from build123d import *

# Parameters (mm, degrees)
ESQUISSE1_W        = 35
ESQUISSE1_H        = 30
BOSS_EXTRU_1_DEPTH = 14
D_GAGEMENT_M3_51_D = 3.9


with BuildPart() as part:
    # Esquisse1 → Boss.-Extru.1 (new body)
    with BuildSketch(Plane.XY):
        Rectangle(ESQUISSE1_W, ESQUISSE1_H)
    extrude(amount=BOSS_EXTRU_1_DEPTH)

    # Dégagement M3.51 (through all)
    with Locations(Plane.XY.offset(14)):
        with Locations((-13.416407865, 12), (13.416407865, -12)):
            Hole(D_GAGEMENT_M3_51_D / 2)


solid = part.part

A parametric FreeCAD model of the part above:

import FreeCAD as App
import Part
import Sketcher

V = App.Vector

doc = App.newDocument("Part")
body = doc.addObject("PartDesign::Body", "Body")

sketch1 = body.newObject("Sketcher::SketchObject", "Sketch")
sketch1.AttachmentSupport = (doc.getObject("XY_Plane"), [""])
sketch1.MapMode = "FlatFace"
sketch1.addGeometry([
    Part.LineSegment(V(-18, 15, 0), V(-18, -15, 0)),
    Part.LineSegment(V(-18, -15, 0), V(18, -15, 0)),
    Part.LineSegment(V(18, -15, 0), V(18, 15, 0)),
    Part.LineSegment(V(18, 15, 0), V(-18, 15, 0)),
], False)
sketch1.addConstraint([
    Sketcher.Constraint("Coincident", 0, 2, 1, 1),
    Sketcher.Constraint("Coincident", 1, 2, 2, 1),
    Sketcher.Constraint("Coincident", 2, 2, 3, 1),
    Sketcher.Constraint("Coincident", 3, 2, 0, 1),
    Sketcher.Constraint("Vertical", 0),
    Sketcher.Constraint("Horizontal", 1),
    Sketcher.Constraint("Vertical", 2),
    Sketcher.Constraint("Horizontal", 3),
    Sketcher.Constraint("Symmetric", 0, 2, 2, 2, -1, 1),
    Sketcher.Constraint("DistanceX", 1, 1, 1, 2, 35.0),
    Sketcher.Constraint("DistanceY", 0, 2, 0, 1, 30.0),
])
pad1 = body.newObject("PartDesign::Pad", "Pad")
pad1.Profile = sketch1
pad1.Length = 14

sketch2 = body.newObject("Sketcher::SketchObject", "Sketch001")
sketch2.AttachmentSupport = (doc.getObject("XY_Plane"), [""])
sketch2.MapMode = "FlatFace"
sketch2.AttachmentOffset = App.Placement(V(0, 0, 14), App.Rotation())
sketch2.addGeometry([
    Part.Circle(V(-13.4, 12, 0), V(0, 0, 1), 1.9),
    Part.Circle(V(13.4, -12, 0), V(0, 0, 1), 1.9),
], False)
sketch2.addConstraint([
    Sketcher.Constraint("Equal", 0, 1),
    Sketcher.Constraint("Symmetric", 0, 3, 1, 3, -1, 1),
    Sketcher.Constraint("Diameter", 0, 3.9),
    Sketcher.Constraint("DistanceY", -1, 1, 0, 3, 12.0),
    Sketcher.Constraint("DistanceX", 0, 3, -1, 1, 13.416408),
])
doc.recompute()
hole = body.newObject("PartDesign::Hole", "Hole")
hole.Profile = sketch2
hole.ThreadType = "None"
hole.Diameter = 3.9
hole.DepthType = "ThroughAll"

doc.recompute()
